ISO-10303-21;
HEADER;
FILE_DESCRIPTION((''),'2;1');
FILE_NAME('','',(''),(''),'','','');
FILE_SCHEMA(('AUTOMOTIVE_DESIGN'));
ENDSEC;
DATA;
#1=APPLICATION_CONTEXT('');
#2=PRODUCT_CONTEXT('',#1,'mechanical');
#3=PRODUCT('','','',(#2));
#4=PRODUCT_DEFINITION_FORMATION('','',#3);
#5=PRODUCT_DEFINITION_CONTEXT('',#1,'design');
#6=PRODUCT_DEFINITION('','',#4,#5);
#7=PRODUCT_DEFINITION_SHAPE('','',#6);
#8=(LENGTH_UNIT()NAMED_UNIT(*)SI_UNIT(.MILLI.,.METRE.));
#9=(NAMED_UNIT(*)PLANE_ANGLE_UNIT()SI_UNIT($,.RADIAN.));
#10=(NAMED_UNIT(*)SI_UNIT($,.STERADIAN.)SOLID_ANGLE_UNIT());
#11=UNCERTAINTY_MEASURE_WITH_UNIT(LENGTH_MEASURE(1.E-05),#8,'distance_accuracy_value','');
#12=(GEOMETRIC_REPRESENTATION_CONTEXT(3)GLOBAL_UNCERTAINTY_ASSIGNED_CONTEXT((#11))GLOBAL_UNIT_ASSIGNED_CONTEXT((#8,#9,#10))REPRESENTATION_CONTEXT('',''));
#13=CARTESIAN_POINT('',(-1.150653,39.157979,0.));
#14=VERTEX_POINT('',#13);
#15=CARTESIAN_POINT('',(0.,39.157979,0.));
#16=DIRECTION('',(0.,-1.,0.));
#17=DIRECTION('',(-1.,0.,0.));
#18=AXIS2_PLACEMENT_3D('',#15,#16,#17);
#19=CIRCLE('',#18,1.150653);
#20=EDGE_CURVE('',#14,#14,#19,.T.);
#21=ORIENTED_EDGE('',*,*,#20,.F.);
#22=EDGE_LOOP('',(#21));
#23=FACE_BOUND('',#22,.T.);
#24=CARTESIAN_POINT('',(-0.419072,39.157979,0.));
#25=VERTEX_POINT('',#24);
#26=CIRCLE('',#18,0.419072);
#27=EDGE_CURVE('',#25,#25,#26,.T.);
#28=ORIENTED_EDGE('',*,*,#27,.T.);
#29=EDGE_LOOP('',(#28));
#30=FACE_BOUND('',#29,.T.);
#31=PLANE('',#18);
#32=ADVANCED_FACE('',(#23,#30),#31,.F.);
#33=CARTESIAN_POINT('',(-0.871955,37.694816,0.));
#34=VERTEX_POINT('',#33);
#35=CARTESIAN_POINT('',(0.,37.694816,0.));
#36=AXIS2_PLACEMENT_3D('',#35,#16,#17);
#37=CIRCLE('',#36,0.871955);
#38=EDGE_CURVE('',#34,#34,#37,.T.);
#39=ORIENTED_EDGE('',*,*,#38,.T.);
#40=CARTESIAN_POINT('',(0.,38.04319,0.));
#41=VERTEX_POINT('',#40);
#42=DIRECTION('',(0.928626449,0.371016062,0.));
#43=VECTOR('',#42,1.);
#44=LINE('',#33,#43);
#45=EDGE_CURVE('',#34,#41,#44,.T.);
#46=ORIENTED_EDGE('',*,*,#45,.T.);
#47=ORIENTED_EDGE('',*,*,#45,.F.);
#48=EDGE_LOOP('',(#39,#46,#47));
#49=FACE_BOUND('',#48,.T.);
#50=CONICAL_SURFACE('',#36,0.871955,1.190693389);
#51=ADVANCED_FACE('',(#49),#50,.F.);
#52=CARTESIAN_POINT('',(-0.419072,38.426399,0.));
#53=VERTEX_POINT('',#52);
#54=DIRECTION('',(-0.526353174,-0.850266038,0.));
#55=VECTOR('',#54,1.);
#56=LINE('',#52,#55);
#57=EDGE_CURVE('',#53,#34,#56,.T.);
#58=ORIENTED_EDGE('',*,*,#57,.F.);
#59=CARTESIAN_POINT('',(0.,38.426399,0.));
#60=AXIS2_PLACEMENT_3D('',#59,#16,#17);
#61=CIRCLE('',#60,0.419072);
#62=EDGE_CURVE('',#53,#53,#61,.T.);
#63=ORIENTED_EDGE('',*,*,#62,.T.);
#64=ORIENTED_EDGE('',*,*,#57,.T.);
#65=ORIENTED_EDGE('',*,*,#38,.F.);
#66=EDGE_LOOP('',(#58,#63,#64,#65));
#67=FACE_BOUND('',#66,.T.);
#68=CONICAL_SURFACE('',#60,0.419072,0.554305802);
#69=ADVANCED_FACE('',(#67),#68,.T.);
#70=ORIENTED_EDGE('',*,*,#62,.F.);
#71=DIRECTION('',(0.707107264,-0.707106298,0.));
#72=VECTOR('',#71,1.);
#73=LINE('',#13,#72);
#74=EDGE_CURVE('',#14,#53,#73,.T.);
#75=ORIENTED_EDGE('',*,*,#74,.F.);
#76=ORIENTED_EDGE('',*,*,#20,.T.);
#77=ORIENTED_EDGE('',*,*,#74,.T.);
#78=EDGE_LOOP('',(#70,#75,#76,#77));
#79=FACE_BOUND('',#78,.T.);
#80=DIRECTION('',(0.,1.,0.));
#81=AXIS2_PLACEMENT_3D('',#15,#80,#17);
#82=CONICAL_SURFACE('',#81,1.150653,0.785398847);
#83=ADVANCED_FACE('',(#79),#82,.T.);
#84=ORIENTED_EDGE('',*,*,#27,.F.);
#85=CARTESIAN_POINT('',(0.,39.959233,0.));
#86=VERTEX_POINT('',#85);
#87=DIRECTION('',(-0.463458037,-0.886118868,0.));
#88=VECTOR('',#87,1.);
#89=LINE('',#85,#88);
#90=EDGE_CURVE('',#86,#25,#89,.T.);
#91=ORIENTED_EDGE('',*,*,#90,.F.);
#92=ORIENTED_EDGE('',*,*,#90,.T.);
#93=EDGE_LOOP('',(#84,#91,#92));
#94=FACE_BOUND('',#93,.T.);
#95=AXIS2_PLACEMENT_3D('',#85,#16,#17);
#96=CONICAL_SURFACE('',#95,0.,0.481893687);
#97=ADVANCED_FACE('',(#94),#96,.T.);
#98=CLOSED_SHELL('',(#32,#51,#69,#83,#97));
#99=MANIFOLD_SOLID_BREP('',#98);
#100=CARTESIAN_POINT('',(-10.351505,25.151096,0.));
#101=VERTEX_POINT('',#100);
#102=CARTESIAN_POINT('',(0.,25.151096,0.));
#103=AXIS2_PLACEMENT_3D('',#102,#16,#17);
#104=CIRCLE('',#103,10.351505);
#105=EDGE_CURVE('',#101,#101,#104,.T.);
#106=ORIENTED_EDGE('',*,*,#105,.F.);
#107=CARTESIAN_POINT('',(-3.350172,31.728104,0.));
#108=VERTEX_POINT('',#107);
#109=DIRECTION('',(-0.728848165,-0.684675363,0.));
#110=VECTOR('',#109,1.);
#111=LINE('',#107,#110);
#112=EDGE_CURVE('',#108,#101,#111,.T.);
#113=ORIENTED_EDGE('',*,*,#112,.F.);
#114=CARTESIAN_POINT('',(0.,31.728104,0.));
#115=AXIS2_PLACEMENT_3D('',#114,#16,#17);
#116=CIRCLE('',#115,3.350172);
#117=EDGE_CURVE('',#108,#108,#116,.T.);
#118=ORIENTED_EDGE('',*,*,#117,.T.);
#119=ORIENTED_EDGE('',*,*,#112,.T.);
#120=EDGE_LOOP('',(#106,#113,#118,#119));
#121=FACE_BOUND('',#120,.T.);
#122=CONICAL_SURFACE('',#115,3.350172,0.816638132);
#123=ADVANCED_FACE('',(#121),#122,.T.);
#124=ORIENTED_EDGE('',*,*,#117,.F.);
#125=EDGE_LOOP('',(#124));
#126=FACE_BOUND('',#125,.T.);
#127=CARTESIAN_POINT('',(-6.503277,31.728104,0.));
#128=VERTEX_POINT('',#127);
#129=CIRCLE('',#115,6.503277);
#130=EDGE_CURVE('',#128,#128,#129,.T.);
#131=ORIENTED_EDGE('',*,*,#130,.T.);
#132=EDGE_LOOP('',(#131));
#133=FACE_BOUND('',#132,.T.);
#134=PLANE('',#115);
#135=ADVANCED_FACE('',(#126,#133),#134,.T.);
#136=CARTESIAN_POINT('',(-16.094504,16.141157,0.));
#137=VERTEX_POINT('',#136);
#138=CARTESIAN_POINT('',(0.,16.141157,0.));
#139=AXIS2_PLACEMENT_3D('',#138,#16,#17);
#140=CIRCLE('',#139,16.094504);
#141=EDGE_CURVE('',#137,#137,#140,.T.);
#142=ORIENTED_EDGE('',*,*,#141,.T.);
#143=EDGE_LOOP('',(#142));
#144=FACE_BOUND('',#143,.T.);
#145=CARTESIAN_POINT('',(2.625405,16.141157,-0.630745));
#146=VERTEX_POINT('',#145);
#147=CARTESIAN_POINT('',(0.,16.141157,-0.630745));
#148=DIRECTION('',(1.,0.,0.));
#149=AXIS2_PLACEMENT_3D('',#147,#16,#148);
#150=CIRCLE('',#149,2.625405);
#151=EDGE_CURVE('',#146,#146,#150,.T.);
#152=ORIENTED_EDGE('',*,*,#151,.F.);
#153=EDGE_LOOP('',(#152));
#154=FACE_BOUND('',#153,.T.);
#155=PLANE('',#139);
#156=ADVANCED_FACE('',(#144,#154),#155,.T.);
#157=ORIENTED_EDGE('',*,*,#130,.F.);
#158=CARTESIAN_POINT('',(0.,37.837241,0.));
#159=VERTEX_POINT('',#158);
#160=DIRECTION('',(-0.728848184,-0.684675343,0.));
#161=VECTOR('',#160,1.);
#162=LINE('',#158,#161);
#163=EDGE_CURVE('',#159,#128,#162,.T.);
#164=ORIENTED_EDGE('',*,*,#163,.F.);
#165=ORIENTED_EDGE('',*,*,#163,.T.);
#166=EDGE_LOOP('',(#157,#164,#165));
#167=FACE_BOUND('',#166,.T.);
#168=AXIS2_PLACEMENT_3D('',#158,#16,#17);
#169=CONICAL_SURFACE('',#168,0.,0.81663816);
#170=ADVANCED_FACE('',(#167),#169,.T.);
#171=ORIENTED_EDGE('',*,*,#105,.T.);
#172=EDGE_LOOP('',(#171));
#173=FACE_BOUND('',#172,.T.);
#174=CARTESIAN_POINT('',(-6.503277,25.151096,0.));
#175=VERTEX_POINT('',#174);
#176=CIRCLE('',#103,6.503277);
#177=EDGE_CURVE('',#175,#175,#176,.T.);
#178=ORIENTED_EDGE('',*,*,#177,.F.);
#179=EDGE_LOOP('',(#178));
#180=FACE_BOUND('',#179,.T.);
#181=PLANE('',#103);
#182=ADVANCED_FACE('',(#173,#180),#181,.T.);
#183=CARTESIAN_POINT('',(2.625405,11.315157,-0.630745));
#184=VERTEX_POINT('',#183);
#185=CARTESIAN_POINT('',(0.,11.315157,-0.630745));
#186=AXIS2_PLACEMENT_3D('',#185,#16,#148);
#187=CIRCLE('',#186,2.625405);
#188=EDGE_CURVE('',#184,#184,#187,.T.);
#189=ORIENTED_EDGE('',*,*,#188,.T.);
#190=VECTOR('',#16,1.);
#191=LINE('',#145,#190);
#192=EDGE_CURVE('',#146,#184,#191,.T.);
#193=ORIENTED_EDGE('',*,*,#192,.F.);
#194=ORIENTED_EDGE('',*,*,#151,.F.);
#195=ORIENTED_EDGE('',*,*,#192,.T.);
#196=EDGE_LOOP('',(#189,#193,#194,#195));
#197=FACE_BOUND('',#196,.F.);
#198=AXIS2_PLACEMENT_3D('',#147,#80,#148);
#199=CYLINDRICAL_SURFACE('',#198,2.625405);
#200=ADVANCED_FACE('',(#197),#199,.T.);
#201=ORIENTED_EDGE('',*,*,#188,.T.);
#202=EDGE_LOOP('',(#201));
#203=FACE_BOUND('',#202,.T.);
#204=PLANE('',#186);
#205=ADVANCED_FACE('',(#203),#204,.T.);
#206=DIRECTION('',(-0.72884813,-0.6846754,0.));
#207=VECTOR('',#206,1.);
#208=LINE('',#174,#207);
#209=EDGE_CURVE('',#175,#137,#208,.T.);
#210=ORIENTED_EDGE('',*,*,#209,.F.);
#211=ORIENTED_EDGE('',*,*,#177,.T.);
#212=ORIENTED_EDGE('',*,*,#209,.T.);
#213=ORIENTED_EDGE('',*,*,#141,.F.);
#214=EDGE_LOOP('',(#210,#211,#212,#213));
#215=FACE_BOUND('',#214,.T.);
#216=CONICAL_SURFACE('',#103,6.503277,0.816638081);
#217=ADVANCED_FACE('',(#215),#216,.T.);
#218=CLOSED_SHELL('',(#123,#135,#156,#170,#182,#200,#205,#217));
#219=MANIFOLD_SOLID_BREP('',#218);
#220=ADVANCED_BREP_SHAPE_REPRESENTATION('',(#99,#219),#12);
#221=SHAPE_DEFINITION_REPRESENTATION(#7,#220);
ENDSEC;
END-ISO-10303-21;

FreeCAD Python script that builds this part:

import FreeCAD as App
import Part
import Sketcher

V = App.Vector
Q = App.Units.Quantity


def add_polygon(sketch, points):
    """Adds a closed chain of lines whose ends are joined by coincident constraints."""
    first, n = sketch.GeometryCount, len(points)
    for a, b in zip(points, points[1:] + points[:1]):
        sketch.addGeometry(Part.LineSegment(App.Vector(*a, 0), App.Vector(*b, 0)), False)
    for i in range(n):
        sketch.addConstraint(Sketcher.Constraint("Coincident", first + i, 2, first + (i + 1) % n, 1))

doc = App.newDocument("Part")
body = doc.addObject("PartDesign::Body", "Body")

# Sketch on XY plane
sketch1 = body.newObject("Sketcher::SketchObject", "Sketch")
sketch1.AttachmentSupport = (doc.getObject("XY_Plane"), [""])
sketch1.MapMode = "FlatFace"
add_polygon(sketch1, [(0, 16.1), (0, 37.8), (-6.5, 31.7), (-3.4, 31.7), (-10.4, 25.2), (-6.5, 25.2), (-16.1, 16.1)])  # lines 0-6
sketch1.addConstraint([
    Sketcher.Constraint("Vertical", 0),
    Sketcher.Constraint("Horizontal", 2),
    Sketcher.Constraint("Horizontal", 4),
    Sketcher.Constraint("Horizontal", 6),
    Sketcher.Constraint("PointOnObject", 0, 2, -2),
    Sketcher.Constraint("Parallel", 1, 3),
    Sketcher.Constraint("Parallel", 3, 5),
    Sketcher.Constraint("Vertical", 1, 2, 4, 2),
    Sketcher.Constraint("DistanceX", 5, 2, 3, 2, Q("5.742999 mm")),
    Sketcher.Constraint("Distance", 5, Q("13.159431 mm")),
    Sketcher.Constraint("DistanceX", 2, 1, 2, 2, Q("3.153105 mm")),
    Sketcher.Constraint("DistanceX", 4, 1, 4, 2, Q("3.848228 mm")),
    Sketcher.Constraint("DistanceX", 6, 1, 6, 2, Q("16.094504 mm")),
    Sketcher.Constraint("DistanceY", -1, 1, 0, 2, Q("37.837241 mm")),
])
revolution = body.newObject("PartDesign::Revolution", "Revolution")
revolution.Profile = sketch1
revolution.ReferenceAxis = (sketch1, ["V_Axis"])
revolution.Angle = 360

# Sketch on XZ plane
sketch2 = body.newObject("Sketcher::SketchObject", "Sketch001")
sketch2.AttachmentSupport = (doc.getObject("XZ_Plane"), [""])
sketch2.MapMode = "FlatFace"
sketch2.AttachmentOffset = App.Placement(V(0, 0, -16.141157), App.Rotation())
sketch2.addGeometry(Part.Circle(V(0, -0.6, 0), V(0, 0, 1), 2.6), False)
sketch2.addConstraint([
    Sketcher.Constraint("PointOnObject", 0, 3, -2),
    Sketcher.Constraint("Diameter", 0, Q("5.25081 mm")),
    Sketcher.Constraint("DistanceY", 0, 3, -1, 1, Q("0.630745 mm")),
])
pad1 = body.newObject("PartDesign::Pad", "Pad")
pad1.Profile = sketch2
pad1.Length = Q("0.19 in")
body2 = doc.addObject("PartDesign::Body", "Body001")

# Sketch on XY plane
sketch3 = body2.newObject("Sketcher::SketchObject", "Sketch002")
sketch3.AttachmentSupport = (doc.getObject("XY_Plane001"), [""])
sketch3.MapMode = "FlatFace"
add_polygon(sketch3, [(0, 38), (0, 40), (-0.4, 39.2), (-1.2, 39.2), (-0.4, 38.4), (-0.9, 37.7)])  # lines 0-5
sketch3.addConstraint([
    Sketcher.Constraint("Vertical", 0),
    Sketcher.Constraint("Horizontal", 2),
    Sketcher.Constraint("PointOnObject", 0, 2, -2),
    Sketcher.Constraint("Vertical", 1, 2, 3, 2),
    Sketcher.Constraint("DistanceX", 2, 2, 2, 1, Q("0.731581 mm")),
    Sketcher.Constraint("DistanceY", -1, 1, 3, 2, Q("38.426399 mm")),
    Sketcher.Constraint("Distance", 1, Q("0.904229 mm")),
    Sketcher.Constraint("Distance", 3, Q("1.034611 mm")),
    Sketcher.Constraint("DistanceY", 0, 1, 0, 2, Q("1.916043 mm")),
    Sketcher.Constraint("DistanceY", -1, 1, 5, 2, Q("38.04319 mm")),
    Sketcher.Constraint("Distance", 4, Q("0.860417 mm")),
    Sketcher.Constraint("Distance", 5, Q("0.938973 mm")),
])
revolution2 = body2.newObject("PartDesign::Revolution", "Revolution001")
revolution2.Profile = sketch3
revolution2.ReferenceAxis = (sketch3, ["V_Axis"])
revolution2.Angle = 360

doc.recompute()
